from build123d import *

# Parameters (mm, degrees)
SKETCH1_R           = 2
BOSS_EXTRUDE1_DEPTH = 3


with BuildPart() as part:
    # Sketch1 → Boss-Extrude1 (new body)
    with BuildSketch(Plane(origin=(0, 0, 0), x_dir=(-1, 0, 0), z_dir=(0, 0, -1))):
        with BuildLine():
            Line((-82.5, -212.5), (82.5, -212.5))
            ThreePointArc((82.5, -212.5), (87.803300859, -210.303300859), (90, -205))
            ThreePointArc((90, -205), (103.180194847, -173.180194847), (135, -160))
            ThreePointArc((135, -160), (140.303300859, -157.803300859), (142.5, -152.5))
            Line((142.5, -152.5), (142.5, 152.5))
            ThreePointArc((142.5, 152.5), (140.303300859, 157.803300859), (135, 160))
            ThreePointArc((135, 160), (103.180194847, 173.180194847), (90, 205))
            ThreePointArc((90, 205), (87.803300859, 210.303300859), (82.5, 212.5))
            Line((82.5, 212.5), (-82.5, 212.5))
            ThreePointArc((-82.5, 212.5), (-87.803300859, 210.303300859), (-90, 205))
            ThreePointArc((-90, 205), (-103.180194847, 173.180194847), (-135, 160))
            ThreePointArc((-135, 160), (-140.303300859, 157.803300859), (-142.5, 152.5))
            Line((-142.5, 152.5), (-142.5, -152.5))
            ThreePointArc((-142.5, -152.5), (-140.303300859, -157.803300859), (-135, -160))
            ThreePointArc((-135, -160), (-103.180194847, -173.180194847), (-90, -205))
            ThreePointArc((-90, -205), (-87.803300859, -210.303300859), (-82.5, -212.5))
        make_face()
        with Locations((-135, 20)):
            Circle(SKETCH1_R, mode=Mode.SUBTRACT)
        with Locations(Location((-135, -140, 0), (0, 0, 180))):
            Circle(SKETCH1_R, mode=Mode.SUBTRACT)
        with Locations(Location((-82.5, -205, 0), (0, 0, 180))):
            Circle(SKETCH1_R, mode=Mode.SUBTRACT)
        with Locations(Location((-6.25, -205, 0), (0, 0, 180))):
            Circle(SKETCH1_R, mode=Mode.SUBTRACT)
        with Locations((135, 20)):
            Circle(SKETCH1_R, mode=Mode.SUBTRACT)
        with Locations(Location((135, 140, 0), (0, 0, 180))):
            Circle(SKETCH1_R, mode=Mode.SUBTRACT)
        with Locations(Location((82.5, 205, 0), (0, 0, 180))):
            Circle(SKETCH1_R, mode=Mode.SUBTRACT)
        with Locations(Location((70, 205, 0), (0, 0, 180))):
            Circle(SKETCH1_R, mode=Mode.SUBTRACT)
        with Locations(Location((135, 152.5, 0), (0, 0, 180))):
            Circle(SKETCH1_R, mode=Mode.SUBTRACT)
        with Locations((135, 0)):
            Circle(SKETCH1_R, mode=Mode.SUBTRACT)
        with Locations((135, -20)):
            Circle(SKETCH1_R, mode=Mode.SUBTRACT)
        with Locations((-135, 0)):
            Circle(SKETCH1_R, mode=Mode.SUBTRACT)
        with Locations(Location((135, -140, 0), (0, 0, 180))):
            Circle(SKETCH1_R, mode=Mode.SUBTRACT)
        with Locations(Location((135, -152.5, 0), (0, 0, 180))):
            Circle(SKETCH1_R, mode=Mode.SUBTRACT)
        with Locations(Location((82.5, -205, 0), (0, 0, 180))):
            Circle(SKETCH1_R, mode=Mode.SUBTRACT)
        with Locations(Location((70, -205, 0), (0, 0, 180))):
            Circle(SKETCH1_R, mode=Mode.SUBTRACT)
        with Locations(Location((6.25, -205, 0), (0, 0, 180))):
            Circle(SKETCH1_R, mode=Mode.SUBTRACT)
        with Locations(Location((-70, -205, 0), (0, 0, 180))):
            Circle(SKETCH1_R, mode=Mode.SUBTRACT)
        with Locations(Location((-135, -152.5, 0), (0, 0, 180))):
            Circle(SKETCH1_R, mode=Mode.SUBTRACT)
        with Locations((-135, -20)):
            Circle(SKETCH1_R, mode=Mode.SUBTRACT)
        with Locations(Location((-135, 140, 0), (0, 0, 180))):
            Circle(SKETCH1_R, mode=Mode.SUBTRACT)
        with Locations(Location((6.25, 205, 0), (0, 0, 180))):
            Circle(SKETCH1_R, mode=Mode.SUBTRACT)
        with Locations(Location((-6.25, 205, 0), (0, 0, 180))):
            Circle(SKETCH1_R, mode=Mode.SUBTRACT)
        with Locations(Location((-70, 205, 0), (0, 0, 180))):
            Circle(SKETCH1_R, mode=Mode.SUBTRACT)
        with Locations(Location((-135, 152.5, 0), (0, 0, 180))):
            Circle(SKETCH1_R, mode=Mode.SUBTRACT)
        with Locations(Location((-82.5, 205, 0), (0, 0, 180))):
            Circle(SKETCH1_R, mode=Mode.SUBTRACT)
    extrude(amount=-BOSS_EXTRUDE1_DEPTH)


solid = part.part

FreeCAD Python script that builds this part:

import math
import FreeCAD as App
import Part
import Sketcher

V = App.Vector

doc = App.newDocument("Part")
body = doc.addObject("PartDesign::Body", "Body")

sketch1 = body.newObject("Sketcher::SketchObject", "Sketch")
sketch1.AttachmentSupport = (doc.getObject("XY_Plane"), [""])
sketch1.MapMode = "FlatFace"
sketch1.addGeometry(Part.LineSegment(V(82.5, -212.5, 0), V(-82.5, -212.5, 0)), False)
sketch1.addGeometry(Part.ArcOfCircle(Part.Circle(V(-82.5, -205, 0), V(0, 0, 1), 7.5), math.radians(180), math.radians(270)), False)
sketch1.addGeometry(Part.ArcOfCircle(Part.Circle(V(-135, -205, 0), V(0, 0, 1), 45), math.radians(0), math.radians(90)), False)
sketch1.addGeometry(Part.ArcOfCircle(Part.Circle(V(-135, -152.5, 0), V(0, 0, 1), 7.5), math.radians(180), math.radians(270)), False)
sketch1.addGeometry(Part.LineSegment(V(-142.5, -152.5, 0), V(-142.5, 152.5, 0)), False)
sketch1.addGeometry(Part.ArcOfCircle(Part.Circle(V(-135, 152.5, 0), V(0, 0, 1), 7.5), math.radians(90), math.radians(180)), False)
sketch1.addGeometry(Part.ArcOfCircle(Part.Circle(V(-135, 205, 0), V(0, 0, 1), 45), math.radians(-90), math.radians(0)), False)
sketch1.addGeometry(Part.ArcOfCircle(Part.Circle(V(-82.5, 205, 0), V(0, 0, 1), 7.5), math.radians(90), math.radians(180)), False)
sketch1.addGeometry(Part.LineSegment(V(-82.5, 212.5, 0), V(82.5, 212.5, 0)), False)
sketch1.addGeometry(Part.ArcOfCircle(Part.Circle(V(82.5, 205, 0), V(0, 0, 1), 7.5), math.radians(0), math.radians(90)), False)
sketch1.addGeometry(Part.ArcOfCircle(Part.Circle(V(135, 205, 0), V(0, 0, 1), 45), math.radians(-180), math.radians(-90)), False)
sketch1.addGeometry(Part.ArcOfCircle(Part.Circle(V(135, 152.5, 0), V(0, 0, 1), 7.5), math.radians(0), math.radians(90)), False)
sketch1.addGeometry(Part.LineSegment(V(142.5, 152.5, 0), V(142.5, -152.5, 0)), False)
sketch1.addGeometry(Part.ArcOfCircle(Part.Circle(V(135, -152.5, 0), V(0, 0, 1), 7.5), math.radians(-90), math.radians(0)), False)
sketch1.addGeometry(Part.ArcOfCircle(Part.Circle(V(135, -205, 0), V(0, 0, 1), 45), math.radians(90), math.radians(180)), False)
sketch1.addGeometry(Part.ArcOfCircle(Part.Circle(V(82.5, -205, 0), V(0, 0, 1), 7.5), math.radians(-90), math.radians(0)), False)
sketch1.addGeometry(Part.Circle(V(82.5, -205, 0), V(0, 0, 1), 2), False)
sketch1.addGeometry(Part.Circle(V(70, -205, 0), V(0, 0, 1), 2), False)
sketch1.addGeometry(Part.Circle(V(135, -152.5, 0), V(0, 0, 1), 2), False)
sketch1.addGeometry(Part.Circle(V(135, -140, 0), V(0, 0, 1), 2), False)
sketch1.addGeometry(Part.Circle(V(6.2, -205, 0), V(0, 0, 1), 2), False)
sketch1.addGeometry(Part.Circle(V(135, -20, 0), V(0, 0, 1), 2), False)
sketch1.addGeometry(Part.Circle(V(-6.2, -205, 0), V(0, 0, 1), 2), False)
sketch1.addGeometry(Part.Circle(V(-70, -205, 0), V(0, 0, 1), 2), False)
sketch1.addGeometry(Part.Circle(V(-82.5, -205, 0), V(0, 0, 1), 2), False)
sketch1.addGeometry(Part.Circle(V(-135, -152.5, 0), V(0, 0, 1), 2), False)
sketch1.addGeometry(Part.Circle(V(-135, -140, 0), V(0, 0, 1), 2), False)
sketch1.addGeometry(Part.Circle(V(-135, -20, 0), V(0, 0, 1), 2), False)
sketch1.addGeometry(Part.Circle(V(135, 0, 0), V(0, 0, 1), 2), False)
sketch1.addGeometry(Part.Circle(V(135, 20, 0), V(0, 0, 1), 2), False)
sketch1.addGeometry(Part.Circle(V(135, 140, 0), V(0, 0, 1), 2), False)
sketch1.addGeometry(Part.Circle(V(135, 152.5, 0), V(0, 0, 1), 2), False)
sketch1.addGeometry(Part.Circle(V(82.5, 205, 0), V(0, 0, 1), 2), False)
sketch1.addGeometry(Part.Circle(V(70, 205, 0), V(0, 0, 1), 2), False)
sketch1.addGeometry(Part.Circle(V(6.2, 205, 0), V(0, 0, 1), 2), False)
sketch1.addGeometry(Part.Circle(V(-135, 0, 0), V(0, 0, 1), 2), False)
sketch1.addGeometry(Part.Circle(V(-135, 20, 0), V(0, 0, 1), 2), False)
sketch1.addGeometry(Part.Circle(V(-6.2, 205, 0), V(0, 0, 1), 2), False)
sketch1.addGeometry(Part.Circle(V(-135, 140, 0), V(0, 0, 1), 2), False)
sketch1.addGeometry(Part.Circle(V(-135, 152.5, 0), V(0, 0, 1), 2), False)
sketch1.addGeometry(Part.Circle(V(-70, 205, 0), V(0, 0, 1), 2), False)
sketch1.addGeometry(Part.Circle(V(-82.5, 205, 0), V(0, 0, 1), 2), False)
sketch1.addConstraint(Sketcher.Constraint("Tangent", 0, 2, 1, 2))
sketch1.addConstraint(Sketcher.Constraint("Tangent", 1, 1, 2, 1))
sketch1.addConstraint(Sketcher.Constraint("Tangent", 2, 2, 3, 2))
sketch1.addConstraint(Sketcher.Constraint("Tangent", 3, 1, 4, 1))
sketch1.addConstraint(Sketcher.Constraint("Tangent", 4, 2, 5, 2))
sketch1.addConstraint(Sketcher.Constraint("Tangent", 5, 1, 6, 1))
sketch1.addConstraint(Sketcher.Constraint("Tangent", 6, 2, 7, 2))
sketch1.addConstraint(Sketcher.Constraint("Tangent", 7, 1, 8, 1))
sketch1.addConstraint(Sketcher.Constraint("Tangent", 8, 2, 9, 2))
sketch1.addConstraint(Sketcher.Constraint("Tangent", 9, 1, 10, 1))
sketch1.addConstraint(Sketcher.Constraint("Tangent", 10, 2, 11, 2))
sketch1.addConstraint(Sketcher.Constraint("Tangent", 11, 1, 12, 1))
sketch1.addConstraint(Sketcher.Constraint("Tangent", 12, 2, 13, 2))
sketch1.addConstraint(Sketcher.Constraint("Tangent", 13, 1, 14, 1))
sketch1.addConstraint(Sketcher.Constraint("Tangent", 14, 2, 15, 2))
sketch1.addConstraint(Sketcher.Constraint("Tangent", 15, 1, 0, 1))
sketch1.addConstraint(Sketcher.Constraint("Horizontal", 0))
sketch1.addConstraint(Sketcher.Constraint("Vertical", 4))
sketch1.addConstraint(Sketcher.Constraint("Horizontal", 8))
sketch1.addConstraint(Sketcher.Constraint("Vertical", 12))
sketch1.addConstraint(Sketcher.Constraint("Coincident", 16, 3, 15, 3))
sketch1.addConstraint(Sketcher.Constraint("Coincident", 18, 3, 13, 3))
sketch1.addConstraint(Sketcher.Constraint("Coincident", 24, 3, 1, 3))
sketch1.addConstraint(Sketcher.Constraint("Coincident", 25, 3, 3, 3))
sketch1.addConstraint(Sketcher.Constraint("Coincident", 31, 3, 11, 3))
sketch1.addConstraint(Sketcher.Constraint("Coincident", 32, 3, 9, 3))
sketch1.addConstraint(Sketcher.Constraint("Coincident", 39, 3, 5, 3))
sketch1.addConstraint(Sketcher.Constraint("Coincident", 41, 3, 7, 3))
sketch1.addConstraint(Sketcher.Constraint("Equal", 1, 3))
sketch1.addConstraint(Sketcher.Constraint("Equal", 3, 5))
sketch1.addConstraint(Sketcher.Constraint("Equal", 2, 6))
sketch1.addConstraint(Sketcher.Constraint("Equal", 5, 7))
sketch1.addConstraint(Sketcher.Constraint("Equal", 7, 9))
sketch1.addConstraint(Sketcher.Constraint("Equal", 6, 10))
sketch1.addConstraint(Sketcher.Constraint("Equal", 9, 11))
sketch1.addConstraint(Sketcher.Constraint("Equal", 11, 13))
sketch1.addConstraint(Sketcher.Constraint("Equal", 10, 14))
sketch1.addConstraint(Sketcher.Constraint("Equal", 13, 15))
sketch1.addConstraint(Sketcher.Constraint("Equal", 16, 17))
sketch1.addConstraint(Sketcher.Constraint("Equal", 17, 18))
sketch1.addConstraint(Sketcher.Constraint("Equal", 18, 19))
sketch1.addConstraint(Sketcher.Constraint("Equal", 19, 20))
sketch1.addConstraint(Sketcher.Constraint("Equal", 20, 21))
sketch1.addConstraint(Sketcher.Constraint("Equal", 21, 22))
sketch1.addConstraint(Sketcher.Constraint("Equal", 22, 23))
sketch1.addConstraint(Sketcher.Constraint("Equal", 23, 24))
sketch1.addConstraint(Sketcher.Constraint("Equal", 24, 25))
sketch1.addConstraint(Sketcher.Constraint("Equal", 25, 26))
sketch1.addConstraint(Sketcher.Constraint("Equal", 26, 27))
sketch1.addConstraint(Sketcher.Constraint("Equal", 27, 28))
sketch1.addConstraint(Sketcher.Constraint("Equal", 28, 29))
sketch1.addConstraint(Sketcher.Constraint("Equal", 29, 30))
sketch1.addConstraint(Sketcher.Constraint("Equal", 30, 31))
sketch1.addConstraint(Sketcher.Constraint("Equal", 31, 32))
sketch1.addConstraint(Sketcher.Constraint("Equal", 32, 33))
sketch1.addConstraint(Sketcher.Constraint("Equal", 33, 34))
sketch1.addConstraint(Sketcher.Constraint("Equal", 34, 35))
sketch1.addConstraint(Sketcher.Constraint("Equal", 35, 36))
sketch1.addConstraint(Sketcher.Constraint("Equal", 36, 37))
sketch1.addConstraint(Sketcher.Constraint("Equal", 37, 38))
sketch1.addConstraint(Sketcher.Constraint("Equal", 38, 39))
sketch1.addConstraint(Sketcher.Constraint("Equal", 39, 40))
sketch1.addConstraint(Sketcher.Constraint("Equal", 40, 41))
sketch1.addConstraint(Sketcher.Constraint("Symmetric", 1, 3, 9, 3, -1, 1))
sketch1.addConstraint(Sketcher.Constraint("Symmetric", 3, 3, 11, 3, -1, 1))
sketch1.addConstraint(Sketcher.Constraint("Symmetric", 6, 3, 14, 3, -1, 1))
sketch1.addConstraint(Sketcher.Constraint("Symmetric", 27, 3, 29, 3, -1, 1))
sketch1.addConstraint(Sketcher.Constraint("Symmetric", 26, 3, 30, 3, -1, 1))
sketch1.addConstraint(Sketcher.Constraint("Symmetric", 23, 3, 33, 3, -1, 1))
sketch1.addConstraint(Sketcher.Constraint("Symmetric", 22, 3, 34, 3, -1, 1))
sketch1.addConstraint(Sketcher.Constraint("Symmetric", 28, 3, 35, 3, -1, 1))
sketch1.addConstraint(Sketcher.Constraint("Symmetric", 21, 3, 36, 3, -1, 1))
sketch1.addConstraint(Sketcher.Constraint("Symmetric", 20, 3, 37, 3, -1, 1))
sketch1.addConstraint(Sketcher.Constraint("Symmetric", 19, 3, 38, 3, -1, 1))
sketch1.addConstraint(Sketcher.Constraint("Symmetric", 17, 3, 40, 3, -1, 1))
sketch1.addConstraint(Sketcher.Constraint("Symmetric", 6, 3, 10, 3, -2))
sketch1.addConstraint(Sketcher.Constraint("Symmetric", 20, 3, 22, 3, -2))
sketch1.addConstraint(Sketcher.Constraint("Symmetric", 17, 3, 23, 3, -2))
sketch1.addConstraint(Sketcher.Constraint("Symmetric", 19, 3, 26, 3, -2))
sketch1.addConstraint(Sketcher.Constraint("Symmetric", 21, 3, 27, 3, -2))
sketch1.addConstraint(Sketcher.Constraint("PointOnObject", 28, 3, -1))
sketch1.addConstraint(Sketcher.Constraint("Horizontal", 1, 3, 2, 3))
sketch1.addConstraint(Sketcher.Constraint("Horizontal", 16, 3, 17, 3))
sketch1.addConstraint(Sketcher.Constraint("Horizontal", 17, 3, 20, 3))
sketch1.addConstraint(Sketcher.Constraint("Vertical", 2, 3, 3, 3))
sketch1.addConstraint(Sketcher.Constraint("Vertical", 18, 3, 19, 3))
sketch1.addConstraint(Sketcher.Constraint("Vertical", 19, 3, 21, 3))
sketch1.addConstraint(Sketcher.Constraint("Vertical", 21, 3, 28, 3))
sketch1.addConstraint(Sketcher.Constraint("Diameter", 16, 4.0))
sketch1.addConstraint(Sketcher.Constraint("Radius", 2, 45.0))
sketch1.addConstraint(Sketcher.Constraint("Radius", 1, 7.5))
sketch1.addConstraint(Sketcher.Constraint("DistanceX", 0, 2, 0, 1, 165.0))
sketch1.addConstraint(Sketcher.Constraint("DistanceY", 4, 1, 4, 2, 305.0))
sketch1.addConstraint(Sketcher.Constraint("DistanceX", -1, 1, 17, 3, 70.0))
sketch1.addConstraint(Sketcher.Constraint("DistanceY", 19, 3, -1, 1, 140.0))
sketch1.addConstraint(Sketcher.Constraint("DistanceY", 21, 3, -1, 1, 20.0))
sketch1.addConstraint(Sketcher.Constraint("DistanceX", 22, 3, 20, 3, 12.5))
pad1 = body.newObject("PartDesign::Pad", "Pad")
pad1.Profile = sketch1
pad1.Length = 3

doc.recompute()
